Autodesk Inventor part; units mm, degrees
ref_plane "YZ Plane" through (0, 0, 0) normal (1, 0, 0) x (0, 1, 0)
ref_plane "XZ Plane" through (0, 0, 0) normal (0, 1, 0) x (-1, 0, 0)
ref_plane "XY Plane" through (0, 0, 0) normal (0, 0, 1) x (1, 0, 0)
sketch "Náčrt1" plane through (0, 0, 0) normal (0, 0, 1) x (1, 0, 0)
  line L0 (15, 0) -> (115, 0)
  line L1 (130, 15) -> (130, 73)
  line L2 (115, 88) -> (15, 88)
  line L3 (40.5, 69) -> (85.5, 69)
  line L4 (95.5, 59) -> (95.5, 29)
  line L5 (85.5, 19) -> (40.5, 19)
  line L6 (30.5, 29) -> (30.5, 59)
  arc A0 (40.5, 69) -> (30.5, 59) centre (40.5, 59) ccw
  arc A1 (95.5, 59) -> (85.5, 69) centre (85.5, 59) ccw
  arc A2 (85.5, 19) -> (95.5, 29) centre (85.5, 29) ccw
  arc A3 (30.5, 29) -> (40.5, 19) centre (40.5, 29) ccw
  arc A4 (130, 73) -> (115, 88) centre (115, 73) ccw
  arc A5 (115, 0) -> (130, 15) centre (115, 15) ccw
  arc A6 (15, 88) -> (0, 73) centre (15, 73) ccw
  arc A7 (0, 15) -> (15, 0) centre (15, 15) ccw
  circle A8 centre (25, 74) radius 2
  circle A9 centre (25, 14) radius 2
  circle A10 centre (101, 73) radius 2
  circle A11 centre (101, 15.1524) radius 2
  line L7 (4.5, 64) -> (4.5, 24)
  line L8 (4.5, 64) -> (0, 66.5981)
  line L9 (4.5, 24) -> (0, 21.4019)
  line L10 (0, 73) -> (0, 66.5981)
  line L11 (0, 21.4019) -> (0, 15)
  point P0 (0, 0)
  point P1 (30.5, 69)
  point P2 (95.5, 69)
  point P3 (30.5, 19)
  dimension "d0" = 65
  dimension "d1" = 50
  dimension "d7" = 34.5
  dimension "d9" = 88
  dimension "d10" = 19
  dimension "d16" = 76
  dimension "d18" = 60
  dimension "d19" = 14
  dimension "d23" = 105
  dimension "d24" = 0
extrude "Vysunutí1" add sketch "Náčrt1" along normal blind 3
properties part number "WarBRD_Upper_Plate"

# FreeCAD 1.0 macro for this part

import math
import FreeCAD as App
import Part
import Sketcher
from FreeCAD import Vector
Q = App.Units.Quantity

doc = App.newDocument("Part")
params = doc.addObject("Spreadsheet::Sheet", "Params")
for row, (alias, value) in enumerate([
    ("sketch1_diameter", "4 mm"),
    ("sketch1_radius", "15 mm"),
    ("sketch1_radius2", "10 mm"),
    ("sketch1_width", "100 mm"),
    ("sketch1_width2", "45 mm"),
    ("pad1_length", "3 mm"),
], start=1):
    params.set(f"A{row}", alias)
    params.set(f"B{row}", "=" + value)
    params.setAlias(f"B{row}", alias)

body = doc.addObject("PartDesign::Body", "Body")

# Sketch on XY plane
sketch1 = body.newObject("Sketcher::SketchObject", "Sketch")
sketch1.AttachmentSupport = (doc.getObject("XY_Plane"), [""])
sketch1.MapMode = "FlatFace"
sketch1.addGeometry([
    Part.ArcOfCircle(Part.Circle(Vector(15, 15, 0), Vector(0, 0, 1), 15), math.radians(180), math.radians(270)),  # 0
    Part.LineSegment(Vector(15, 0, 0), Vector(115, 0, 0)),  # 1
    Part.ArcOfCircle(Part.Circle(Vector(115, 15, 0), Vector(0, 0, 1), 15), math.radians(-90), math.radians(0)),  # 2
    Part.LineSegment(Vector(130, 15, 0), Vector(130, 73, 0)),  # 3
    Part.ArcOfCircle(Part.Circle(Vector(115, 73, 0), Vector(0, 0, 1), 15), math.radians(0), math.radians(90)),  # 4
    Part.LineSegment(Vector(115, 88, 0), Vector(15, 88, 0)),  # 5
    Part.ArcOfCircle(Part.Circle(Vector(15, 73, 0), Vector(0, 0, 1), 15), math.radians(90), math.radians(180)),  # 6
    Part.LineSegment(Vector(0, 73, 0), Vector(0, 66.5981, 0)),  # 7
    Part.LineSegment(Vector(0, 66.5981, 0), Vector(4.5, 64, 0)),  # 8
    Part.LineSegment(Vector(4.5, 64, 0), Vector(4.5, 24, 0)),  # 9
    Part.LineSegment(Vector(4.5, 24, 0), Vector(0, 21.4019, 0)),  # 10
    Part.LineSegment(Vector(0, 21.4019, 0), Vector(0, 15, 0)),  # 11
    Part.Circle(Vector(25, 14, 0), Vector(0, 0, 1), 2),  # 12
    Part.Circle(Vector(101, 15.1524, 0), Vector(0, 0, 1), 2),  # 13
    Part.ArcOfCircle(Part.Circle(Vector(40.5, 59, 0), Vector(0, 0, 1), 10), math.radians(90), math.radians(180)),  # 14
    Part.LineSegment(Vector(40.5, 69, 0), Vector(85.5, 69, 0)),  # 15
    Part.ArcOfCircle(Part.Circle(Vector(85.5, 59, 0), Vector(0, 0, 1), 10), math.radians(0), math.radians(90)),  # 16
    Part.LineSegment(Vector(95.5, 59, 0), Vector(95.5, 29, 0)),  # 17
    Part.ArcOfCircle(Part.Circle(Vector(85.5, 29, 0), Vector(0, 0, 1), 10), math.radians(-90), math.radians(0)),  # 18
    Part.LineSegment(Vector(85.5, 19, 0), Vector(40.5, 19, 0)),  # 19
    Part.ArcOfCircle(Part.Circle(Vector(40.5, 29, 0), Vector(0, 0, 1), 10), math.radians(180), math.radians(270)),  # 20
    Part.LineSegment(Vector(30.5, 29, 0), Vector(30.5, 59, 0)),  # 21
    Part.Circle(Vector(25, 74, 0), Vector(0, 0, 1), 2),  # 22
    Part.Circle(Vector(101, 73, 0), Vector(0, 0, 1), 2),  # 23
], False)
sketch1.addConstraint([
    Sketcher.Constraint("Tangent", 0, 2, 1, 1),
    Sketcher.Constraint("Tangent", 1, 2, 2, 1),
    Sketcher.Constraint("Tangent", 2, 2, 3, 1),
    Sketcher.Constraint("Tangent", 3, 2, 4, 1),
    Sketcher.Constraint("Tangent", 4, 2, 5, 1),
    Sketcher.Constraint("Tangent", 5, 2, 6, 1),
    Sketcher.Constraint("Tangent", 6, 2, 7, 1),
    Sketcher.Constraint("Coincident", 7, 2, 8, 1),
    Sketcher.Constraint("Coincident", 8, 2, 9, 1),
    Sketcher.Constraint("Coincident", 9, 2, 10, 1),
    Sketcher.Constraint("Coincident", 10, 2, 11, 1),
    Sketcher.Constraint("Tangent", 11, 2, 0, 1),
    Sketcher.Constraint("Tangent", 14, 1, 15, 1),
    Sketcher.Constraint("Tangent", 15, 2, 16, 2),
    Sketcher.Constraint("Tangent", 16, 1, 17, 1),
    Sketcher.Constraint("Tangent", 17, 2, 18, 2),
    Sketcher.Constraint("Tangent", 18, 1, 19, 1),
    Sketcher.Constraint("Tangent", 19, 2, 20, 2),
    Sketcher.Constraint("Tangent", 20, 1, 21, 1),
    Sketcher.Constraint("Tangent", 21, 2, 14, 2),
    Sketcher.Constraint("Horizontal", 1),
    Sketcher.Constraint("Vertical", 3),
    Sketcher.Constraint("Horizontal", 5),
    Sketcher.Constraint("Vertical", 7),
    Sketcher.Constraint("Vertical", 9),
    Sketcher.Constraint("Vertical", 11),
    Sketcher.Constraint("Horizontal", 15),
    Sketcher.Constraint("Vertical", 17),
    Sketcher.Constraint("Horizontal", 19),
    Sketcher.Constraint("Vertical", 21),
    Sketcher.Constraint("Equal", 0, 2),
    Sketcher.Constraint("Equal", 2, 4),
    Sketcher.Constraint("Equal", 4, 6),
    Sketcher.Constraint("Equal", 12, 13),
    Sketcher.Constraint("Equal", 14, 16),
    Sketcher.Constraint("Equal", 16, 18),
    Sketcher.Constraint("Equal", 18, 20),
    Sketcher.Constraint("Equal", 13, 22),
    Sketcher.Constraint("Equal", 22, 23),
    Sketcher.Constraint("PointOnObject", 0, 2, -1),
    Sketcher.Constraint("PointOnObject", 6, 2, -2),
    Sketcher.Constraint("PointOnObject", 10, 2, -2),
    Sketcher.Constraint("Horizontal", 6, 3, 23, 3),
    Sketcher.Constraint("Vertical", 12, 3, 22, 3),
    Sketcher.Constraint("Vertical", 13, 3, 23, 3),
    Sketcher.Constraint("Equal", 7, 11),
    Sketcher.Constraint("Equal", 8, 10),
    Sketcher.Constraint("Diameter", 12, Q("4 mm")),
    Sketcher.Constraint("DistanceY", -1, 1, 12, 3, Q("14 mm")),
    Sketcher.Constraint("DistanceY", -1, 1, 4, 2, Q("88 mm")),
    Sketcher.Constraint("DistanceY", -1, 1, 18, 1, Q("19 mm")),
    Sketcher.Constraint("Radius", 0, Q("15 mm")),
    Sketcher.Constraint("Radius", 14, Q("10 mm")),
    Sketcher.Constraint("DistanceX", 13, 3, 2, 3, Q("14 mm")),
    Sketcher.Constraint("DistanceX", 12, 3, 13, 3, Q("76 mm")),
    Sketcher.Constraint("DistanceY", 14, 3, 6, 3, Q("14 mm")),
    Sketcher.Constraint("DistanceY", 12, 3, 22, 3, Q("60 mm")),
    Sketcher.Constraint("DistanceX", 1, 1, 1, 2, Q("100 mm")),
    Sketcher.Constraint("DistanceX", 15, 1, 15, 2, Q("45 mm")),
    Sketcher.Constraint("DistanceY", 9, 2, 9, 1, Q("40 mm")),
    Sketcher.Constraint("Angle", 8, Q("-30.0002 deg")),
    Sketcher.Constraint("DistanceX", 9, 2, 20, 3, Q("36 mm")),
    Sketcher.Constraint("DistanceX", -1, 1, 14, 3, Q("40.5 mm")),
    Sketcher.Constraint("DistanceY", -1, 1, 13, 3, Q("15.1524 mm")),
])
sketch1.setExpression("Constraints[47]", "Params.sketch1_diameter")
sketch1.setExpression("Constraints[51]", "Params.sketch1_radius")
sketch1.setExpression("Constraints[52]", "Params.sketch1_radius2")
sketch1.setExpression("Constraints[57]", "Params.sketch1_width")
sketch1.setExpression("Constraints[58]", "Params.sketch1_width2")
pad1 = body.newObject("PartDesign::Pad", "Pad")
pad1.Profile = sketch1
pad1.setExpression("Length", "Params.pad1_length")

doc.recompute()
